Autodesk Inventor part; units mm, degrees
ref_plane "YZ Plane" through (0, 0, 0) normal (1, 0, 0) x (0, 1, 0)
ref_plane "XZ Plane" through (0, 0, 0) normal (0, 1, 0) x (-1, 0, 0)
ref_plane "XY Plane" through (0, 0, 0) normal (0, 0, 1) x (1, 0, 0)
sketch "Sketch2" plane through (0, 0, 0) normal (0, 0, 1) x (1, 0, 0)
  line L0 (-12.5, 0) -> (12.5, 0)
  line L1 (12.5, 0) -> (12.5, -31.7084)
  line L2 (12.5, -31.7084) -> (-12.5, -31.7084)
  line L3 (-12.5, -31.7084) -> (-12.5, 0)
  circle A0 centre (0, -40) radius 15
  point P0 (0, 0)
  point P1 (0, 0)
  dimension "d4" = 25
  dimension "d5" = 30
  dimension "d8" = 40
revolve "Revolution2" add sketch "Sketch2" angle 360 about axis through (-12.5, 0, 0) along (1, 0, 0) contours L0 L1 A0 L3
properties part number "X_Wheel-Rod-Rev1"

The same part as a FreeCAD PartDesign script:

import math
import FreeCAD as App
import Part
import Sketcher
from FreeCAD import Vector

doc = App.newDocument("Part")
body = doc.addObject("PartDesign::Body", "Body")

sketch1 = body.newObject("Sketcher::SketchObject", "Sketch")
sketch1.AttachmentSupport = (doc.getObject("XY_Plane"), [""])
sketch1.MapMode = "FlatFace"
sketch1.addGeometry(Part.LineSegment(Vector(12, 0, 0), Vector(-12, 0, 0)), False)
sketch1.addGeometry(Part.LineSegment(Vector(-12, 0, 0), Vector(-12, -32, 0)), False)
sketch1.addGeometry(Part.ArcOfCircle(Part.Circle(Vector(0, -40, 0), Vector(0, 0, 1), 15), math.radians(34), math.radians(146)), False)
sketch1.addGeometry(Part.LineSegment(Vector(12, -32, 0), Vector(12, 0, 0)), False)
sketch1.addConstraint(Sketcher.Constraint("Coincident", 0, 2, 1, 1))
sketch1.addConstraint(Sketcher.Constraint("Coincident", 1, 2, 2, 2))
sketch1.addConstraint(Sketcher.Constraint("Coincident", 2, 1, 3, 1))
sketch1.addConstraint(Sketcher.Constraint("Coincident", 3, 2, 0, 1))
sketch1.addConstraint(Sketcher.Constraint("Horizontal", 0))
sketch1.addConstraint(Sketcher.Constraint("Vertical", 1))
sketch1.addConstraint(Sketcher.Constraint("Vertical", 3))
sketch1.addConstraint(Sketcher.Constraint("Symmetric", 0, 2, 3, 2, -1, 1))
sketch1.addConstraint(Sketcher.Constraint("PointOnObject", 2, 3, -2))
sketch1.addConstraint(Sketcher.Constraint("Radius", 2, 15.0))
sketch1.addConstraint(Sketcher.Constraint("DistanceX", 0, 2, 0, 1, 25.0))
sketch1.addConstraint(Sketcher.Constraint("DistanceY", 2, 3, -1, 1, 40.0))
revolution = body.newObject("PartDesign::Revolution", "Revolution")
revolution.Profile = sketch1
revolution.ReferenceAxis = (sketch1, ["H_Axis"])
revolution.Angle = 360

doc.recompute()
